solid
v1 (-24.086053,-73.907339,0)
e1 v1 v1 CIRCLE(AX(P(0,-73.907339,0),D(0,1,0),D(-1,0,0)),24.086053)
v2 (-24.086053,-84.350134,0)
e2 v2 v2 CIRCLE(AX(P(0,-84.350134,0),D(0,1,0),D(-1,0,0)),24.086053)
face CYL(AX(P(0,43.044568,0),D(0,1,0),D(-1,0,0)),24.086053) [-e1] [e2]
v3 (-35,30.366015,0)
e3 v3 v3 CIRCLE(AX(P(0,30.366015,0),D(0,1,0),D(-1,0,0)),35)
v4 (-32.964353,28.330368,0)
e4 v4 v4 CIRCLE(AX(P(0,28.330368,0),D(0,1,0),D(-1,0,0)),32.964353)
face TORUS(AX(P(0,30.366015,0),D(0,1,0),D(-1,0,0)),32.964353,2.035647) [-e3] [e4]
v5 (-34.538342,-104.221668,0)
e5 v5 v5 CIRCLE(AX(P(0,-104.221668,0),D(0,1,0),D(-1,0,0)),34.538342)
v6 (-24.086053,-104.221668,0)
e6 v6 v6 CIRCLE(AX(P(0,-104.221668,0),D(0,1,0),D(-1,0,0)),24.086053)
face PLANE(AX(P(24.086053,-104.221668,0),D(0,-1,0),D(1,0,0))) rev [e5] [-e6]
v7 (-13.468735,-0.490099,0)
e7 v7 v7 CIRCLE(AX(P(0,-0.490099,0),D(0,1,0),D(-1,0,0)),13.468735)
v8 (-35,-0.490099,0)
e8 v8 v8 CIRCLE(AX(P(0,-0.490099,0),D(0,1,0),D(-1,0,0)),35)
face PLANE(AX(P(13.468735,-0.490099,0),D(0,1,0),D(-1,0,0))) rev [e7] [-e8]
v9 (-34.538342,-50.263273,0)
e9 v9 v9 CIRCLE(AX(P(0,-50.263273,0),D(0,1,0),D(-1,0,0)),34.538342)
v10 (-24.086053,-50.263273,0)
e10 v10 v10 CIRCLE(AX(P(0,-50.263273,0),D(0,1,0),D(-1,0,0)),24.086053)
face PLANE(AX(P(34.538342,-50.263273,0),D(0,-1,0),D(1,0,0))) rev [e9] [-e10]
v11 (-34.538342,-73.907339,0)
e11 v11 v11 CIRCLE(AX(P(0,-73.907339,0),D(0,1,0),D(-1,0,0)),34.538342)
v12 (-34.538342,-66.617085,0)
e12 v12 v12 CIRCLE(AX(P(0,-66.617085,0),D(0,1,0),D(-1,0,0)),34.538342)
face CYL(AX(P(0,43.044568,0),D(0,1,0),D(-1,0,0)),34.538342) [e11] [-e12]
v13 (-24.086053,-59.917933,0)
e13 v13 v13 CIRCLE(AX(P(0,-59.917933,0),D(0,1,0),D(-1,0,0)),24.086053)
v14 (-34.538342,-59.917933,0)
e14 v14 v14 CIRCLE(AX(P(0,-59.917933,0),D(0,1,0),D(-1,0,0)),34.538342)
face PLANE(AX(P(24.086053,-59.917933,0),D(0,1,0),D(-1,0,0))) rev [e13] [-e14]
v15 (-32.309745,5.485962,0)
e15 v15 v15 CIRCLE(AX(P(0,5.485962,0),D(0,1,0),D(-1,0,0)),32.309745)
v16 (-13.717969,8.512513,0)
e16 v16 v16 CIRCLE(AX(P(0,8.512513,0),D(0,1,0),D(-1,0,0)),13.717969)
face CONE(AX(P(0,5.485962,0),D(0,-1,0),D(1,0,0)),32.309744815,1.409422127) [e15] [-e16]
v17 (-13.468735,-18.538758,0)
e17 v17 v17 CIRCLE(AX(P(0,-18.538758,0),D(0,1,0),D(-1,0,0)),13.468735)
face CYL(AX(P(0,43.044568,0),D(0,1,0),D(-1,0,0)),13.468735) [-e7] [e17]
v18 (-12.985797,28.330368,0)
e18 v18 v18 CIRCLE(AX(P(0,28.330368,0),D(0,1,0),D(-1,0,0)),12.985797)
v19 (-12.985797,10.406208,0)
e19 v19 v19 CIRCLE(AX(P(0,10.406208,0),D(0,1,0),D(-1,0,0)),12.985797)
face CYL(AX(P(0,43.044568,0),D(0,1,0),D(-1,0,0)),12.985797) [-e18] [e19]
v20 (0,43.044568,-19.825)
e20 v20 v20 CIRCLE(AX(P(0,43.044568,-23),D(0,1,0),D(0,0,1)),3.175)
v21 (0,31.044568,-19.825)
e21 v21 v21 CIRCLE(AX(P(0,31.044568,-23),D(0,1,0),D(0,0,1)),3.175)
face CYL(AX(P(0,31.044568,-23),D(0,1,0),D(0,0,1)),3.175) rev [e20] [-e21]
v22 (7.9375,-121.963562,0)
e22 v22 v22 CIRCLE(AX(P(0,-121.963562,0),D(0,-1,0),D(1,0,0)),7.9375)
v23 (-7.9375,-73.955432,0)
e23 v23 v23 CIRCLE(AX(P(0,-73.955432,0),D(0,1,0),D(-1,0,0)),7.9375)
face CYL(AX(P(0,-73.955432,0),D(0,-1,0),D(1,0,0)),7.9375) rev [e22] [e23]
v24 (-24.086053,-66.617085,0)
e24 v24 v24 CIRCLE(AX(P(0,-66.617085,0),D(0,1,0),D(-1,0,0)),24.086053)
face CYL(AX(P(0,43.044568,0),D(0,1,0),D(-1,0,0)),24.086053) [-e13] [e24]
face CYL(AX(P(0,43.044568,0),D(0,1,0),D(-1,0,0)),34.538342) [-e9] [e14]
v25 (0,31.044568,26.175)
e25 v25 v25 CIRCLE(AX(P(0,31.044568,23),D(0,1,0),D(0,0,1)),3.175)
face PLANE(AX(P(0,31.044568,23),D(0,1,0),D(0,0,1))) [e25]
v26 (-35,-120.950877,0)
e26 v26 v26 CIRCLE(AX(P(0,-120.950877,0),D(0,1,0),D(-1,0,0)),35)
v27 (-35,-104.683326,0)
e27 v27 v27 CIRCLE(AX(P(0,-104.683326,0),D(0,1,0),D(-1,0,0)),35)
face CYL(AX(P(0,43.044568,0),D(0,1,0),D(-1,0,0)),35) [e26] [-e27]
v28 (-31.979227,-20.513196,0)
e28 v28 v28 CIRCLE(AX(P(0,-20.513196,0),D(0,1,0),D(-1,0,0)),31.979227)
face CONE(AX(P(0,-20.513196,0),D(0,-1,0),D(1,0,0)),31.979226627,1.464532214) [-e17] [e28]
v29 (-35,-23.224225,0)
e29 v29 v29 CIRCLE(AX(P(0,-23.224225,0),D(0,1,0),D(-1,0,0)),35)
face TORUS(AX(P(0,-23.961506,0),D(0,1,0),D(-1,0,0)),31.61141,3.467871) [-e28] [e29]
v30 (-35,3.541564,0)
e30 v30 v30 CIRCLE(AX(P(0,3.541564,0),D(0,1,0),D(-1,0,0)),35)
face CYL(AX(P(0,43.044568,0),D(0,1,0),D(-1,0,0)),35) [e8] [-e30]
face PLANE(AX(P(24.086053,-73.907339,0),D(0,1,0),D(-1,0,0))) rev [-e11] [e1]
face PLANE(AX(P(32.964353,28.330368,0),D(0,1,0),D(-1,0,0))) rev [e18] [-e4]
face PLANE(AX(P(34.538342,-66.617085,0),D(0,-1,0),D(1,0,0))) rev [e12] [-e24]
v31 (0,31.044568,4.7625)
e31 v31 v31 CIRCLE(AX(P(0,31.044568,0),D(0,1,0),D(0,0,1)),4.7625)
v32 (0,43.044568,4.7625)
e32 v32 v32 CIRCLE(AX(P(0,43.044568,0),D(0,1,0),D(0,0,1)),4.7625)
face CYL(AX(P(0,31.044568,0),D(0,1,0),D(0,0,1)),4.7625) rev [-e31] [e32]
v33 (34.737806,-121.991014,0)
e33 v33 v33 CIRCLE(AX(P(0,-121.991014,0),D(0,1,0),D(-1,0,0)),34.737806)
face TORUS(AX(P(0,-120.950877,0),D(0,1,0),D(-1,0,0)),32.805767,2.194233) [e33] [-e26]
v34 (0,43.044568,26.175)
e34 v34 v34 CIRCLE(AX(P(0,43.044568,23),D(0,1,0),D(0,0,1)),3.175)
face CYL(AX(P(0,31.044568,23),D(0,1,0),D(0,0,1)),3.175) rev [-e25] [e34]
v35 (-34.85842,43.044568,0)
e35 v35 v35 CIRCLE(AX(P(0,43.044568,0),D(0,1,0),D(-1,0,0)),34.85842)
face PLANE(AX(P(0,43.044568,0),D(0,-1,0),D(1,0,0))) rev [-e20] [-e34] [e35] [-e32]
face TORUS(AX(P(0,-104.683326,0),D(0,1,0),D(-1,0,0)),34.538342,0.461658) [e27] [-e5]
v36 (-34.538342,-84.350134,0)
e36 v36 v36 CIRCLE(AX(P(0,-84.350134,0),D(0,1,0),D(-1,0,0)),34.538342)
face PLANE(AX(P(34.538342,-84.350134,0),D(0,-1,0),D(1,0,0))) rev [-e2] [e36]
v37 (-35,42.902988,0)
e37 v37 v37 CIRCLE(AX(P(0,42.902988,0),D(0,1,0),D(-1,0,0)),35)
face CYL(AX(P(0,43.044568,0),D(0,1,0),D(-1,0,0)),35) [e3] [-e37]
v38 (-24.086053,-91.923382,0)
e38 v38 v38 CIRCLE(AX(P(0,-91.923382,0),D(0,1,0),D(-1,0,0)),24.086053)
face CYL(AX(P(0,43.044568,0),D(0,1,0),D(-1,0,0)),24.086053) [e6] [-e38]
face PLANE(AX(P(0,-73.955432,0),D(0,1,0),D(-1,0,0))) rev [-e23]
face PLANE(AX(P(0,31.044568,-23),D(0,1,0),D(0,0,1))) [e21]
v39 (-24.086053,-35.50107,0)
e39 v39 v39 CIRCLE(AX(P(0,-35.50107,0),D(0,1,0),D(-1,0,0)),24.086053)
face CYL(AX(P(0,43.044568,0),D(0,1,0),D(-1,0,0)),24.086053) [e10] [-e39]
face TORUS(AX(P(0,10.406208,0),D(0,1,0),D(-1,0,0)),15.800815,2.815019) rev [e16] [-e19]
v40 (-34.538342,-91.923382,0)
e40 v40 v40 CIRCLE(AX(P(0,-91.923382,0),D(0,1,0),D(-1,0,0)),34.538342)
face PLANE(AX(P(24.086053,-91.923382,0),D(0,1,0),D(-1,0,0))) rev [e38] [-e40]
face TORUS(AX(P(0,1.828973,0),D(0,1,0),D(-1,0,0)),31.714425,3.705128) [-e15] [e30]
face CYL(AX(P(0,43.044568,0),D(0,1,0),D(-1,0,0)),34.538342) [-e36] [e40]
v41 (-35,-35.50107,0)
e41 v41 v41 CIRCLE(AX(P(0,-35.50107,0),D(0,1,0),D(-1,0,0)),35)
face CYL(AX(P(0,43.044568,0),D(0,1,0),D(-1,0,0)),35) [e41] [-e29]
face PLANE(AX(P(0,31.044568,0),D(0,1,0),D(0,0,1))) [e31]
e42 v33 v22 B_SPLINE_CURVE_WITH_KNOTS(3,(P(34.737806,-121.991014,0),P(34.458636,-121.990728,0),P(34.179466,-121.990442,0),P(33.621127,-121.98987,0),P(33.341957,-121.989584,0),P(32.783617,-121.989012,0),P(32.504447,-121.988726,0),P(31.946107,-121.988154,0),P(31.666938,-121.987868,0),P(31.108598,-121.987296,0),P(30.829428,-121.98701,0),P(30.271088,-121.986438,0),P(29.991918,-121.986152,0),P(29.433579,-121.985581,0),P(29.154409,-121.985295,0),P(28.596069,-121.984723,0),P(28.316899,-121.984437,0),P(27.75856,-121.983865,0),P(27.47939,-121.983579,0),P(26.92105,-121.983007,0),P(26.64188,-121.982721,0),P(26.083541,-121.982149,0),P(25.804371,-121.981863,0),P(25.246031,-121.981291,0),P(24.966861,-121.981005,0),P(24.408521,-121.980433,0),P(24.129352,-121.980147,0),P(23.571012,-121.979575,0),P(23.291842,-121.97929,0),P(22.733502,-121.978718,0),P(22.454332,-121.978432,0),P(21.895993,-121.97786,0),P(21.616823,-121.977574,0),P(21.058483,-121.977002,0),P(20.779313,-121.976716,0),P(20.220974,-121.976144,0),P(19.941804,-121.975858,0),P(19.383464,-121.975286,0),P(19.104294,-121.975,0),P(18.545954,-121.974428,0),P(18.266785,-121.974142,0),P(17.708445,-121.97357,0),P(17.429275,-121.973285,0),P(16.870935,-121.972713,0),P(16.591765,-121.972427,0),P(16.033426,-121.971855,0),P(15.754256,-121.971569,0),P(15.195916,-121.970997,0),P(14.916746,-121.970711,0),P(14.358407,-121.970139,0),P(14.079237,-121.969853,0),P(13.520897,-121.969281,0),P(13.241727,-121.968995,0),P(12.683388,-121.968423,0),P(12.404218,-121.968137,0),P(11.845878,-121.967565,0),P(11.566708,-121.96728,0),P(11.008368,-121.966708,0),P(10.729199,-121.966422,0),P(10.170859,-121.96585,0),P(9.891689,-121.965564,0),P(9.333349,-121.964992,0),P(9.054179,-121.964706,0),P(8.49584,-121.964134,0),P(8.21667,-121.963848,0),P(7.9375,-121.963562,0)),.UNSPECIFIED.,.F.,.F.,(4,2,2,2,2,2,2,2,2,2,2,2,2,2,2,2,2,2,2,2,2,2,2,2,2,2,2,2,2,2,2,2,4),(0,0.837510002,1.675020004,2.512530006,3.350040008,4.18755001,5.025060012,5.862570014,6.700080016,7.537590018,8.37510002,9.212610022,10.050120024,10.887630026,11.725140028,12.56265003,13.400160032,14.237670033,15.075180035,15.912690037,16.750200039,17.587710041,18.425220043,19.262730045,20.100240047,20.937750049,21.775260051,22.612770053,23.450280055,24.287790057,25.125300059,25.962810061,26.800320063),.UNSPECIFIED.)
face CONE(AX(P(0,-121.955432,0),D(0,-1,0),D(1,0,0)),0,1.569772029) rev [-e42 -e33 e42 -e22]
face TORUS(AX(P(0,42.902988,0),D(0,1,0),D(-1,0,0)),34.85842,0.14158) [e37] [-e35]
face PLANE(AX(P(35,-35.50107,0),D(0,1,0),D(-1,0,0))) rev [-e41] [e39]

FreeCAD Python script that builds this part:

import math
import FreeCAD as App
import Part
import Sketcher

V = App.Vector

doc = App.newDocument("Part")
body = doc.addObject("PartDesign::Body", "Body")

# Sketch on XY plane
sketch1 = body.newObject("Sketcher::SketchObject", "Sketch")
sketch1.AttachmentSupport = (doc.getObject("XY_Plane"), [""])
sketch1.MapMode = "FlatFace"
sketch1.addGeometry([
    Part.LineSegment(V(34.86, 43.04, 0), V(0, 43.04, 0)),  # 0
    Part.LineSegment(V(0, 43.04, 0), V(0, -121.96, 0)),  # 1
    Part.LineSegment(V(0, -121.96, 0), V(34.74, -121.99, 0)),  # 2
    Part.ArcOfCircle(Part.Circle(V(32.81, -120.95, 0), V(0, 0, 1), 2.19), math.radians(-28), math.radians(0)),  # 3
    Part.LineSegment(V(35, -120.95, 0), V(35, -104.68, 0)),  # 4
    Part.ArcOfCircle(Part.Circle(V(34.54, -104.68, 0), V(0, 0, 1), 0.46), math.radians(0), math.radians(90)),  # 5
    Part.LineSegment(V(34.54, -104.22, 0), V(24.09, -104.22, 0)),  # 6
    Part.LineSegment(V(24.09, -104.22, 0), V(24.09, -91.92, 0)),  # 7
    Part.LineSegment(V(24.09, -91.92, 0), V(34.54, -91.92, 0)),  # 8
    Part.LineSegment(V(34.54, -91.92, 0), V(34.54, -84.35, 0)),  # 9
    Part.LineSegment(V(34.54, -84.35, 0), V(24.09, -84.35, 0)),  # 10
    Part.LineSegment(V(24.09, -84.35, 0), V(24.09, -73.91, 0)),  # 11
    Part.LineSegment(V(24.09, -73.91, 0), V(34.54, -73.91, 0)),  # 12
    Part.LineSegment(V(34.54, -73.91, 0), V(34.54, -66.62, 0)),  # 13
    Part.LineSegment(V(34.54, -66.62, 0), V(24.09, -66.62, 0)),  # 14
    Part.LineSegment(V(24.09, -66.62, 0), V(24.09, -59.92, 0)),  # 15
    Part.LineSegment(V(24.09, -59.92, 0), V(34.54, -59.92, 0)),  # 16
    Part.LineSegment(V(34.54, -59.92, 0), V(34.54, -50.26, 0)),  # 17
    Part.LineSegment(V(34.54, -50.26, 0), V(24.09, -50.26, 0)),  # 18
    Part.LineSegment(V(24.09, -50.26, 0), V(24.09, -35.5, 0)),  # 19
    Part.LineSegment(V(24.09, -35.5, 0), V(35, -35.5, 0)),  # 20
    Part.LineSegment(V(35, -35.5, 0), V(35, -23.22, 0)),  # 21
    Part.ArcOfCircle(Part.Circle(V(31.61, -23.96, 0), V(0, 0, 1), 3.47), math.radians(12), math.radians(84)),  # 22
    Part.LineSegment(V(31.98, -20.51, 0), V(13.47, -18.54, 0)),  # 23
    Part.LineSegment(V(13.47, -18.54, 0), V(13.47, -0.49, 0)),  # 24
    Part.LineSegment(V(13.47, -0.49, 0), V(35, -0.49, 0)),  # 25
    Part.LineSegment(V(35, -0.49, 0), V(35, 3.54, 0)),  # 26
    Part.ArcOfCircle(Part.Circle(V(31.71, 1.83, 0), V(0, 0, 1), 3.71), math.radians(28), math.radians(81)),  # 27
    Part.LineSegment(V(32.31, 5.49, 0), V(13.72, 8.51, 0)),  # 28
    Part.ArcOfCircle(Part.Circle(V(15.8, 10.41, 0), V(0, 0, 1), 2.82), math.radians(-180), math.radians(-138)),  # 29
    Part.LineSegment(V(12.99, 10.41, 0), V(12.99, 28.33, 0)),  # 30
    Part.LineSegment(V(12.99, 28.33, 0), V(32.96, 28.33, 0)),  # 31
    Part.ArcOfCircle(Part.Circle(V(32.96, 30.37, 0), V(0, 0, 1), 2.04), math.radians(-90), math.radians(0)),  # 32
    Part.LineSegment(V(35, 30.37, 0), V(35, 42.9, 0)),  # 33
    Part.ArcOfCircle(Part.Circle(V(34.86, 42.9, 0), V(0, 0, 1), 0.14), math.radians(0), math.radians(90)),  # 34
], False)
sketch1.addConstraint([
    Sketcher.Constraint("Coincident", 0, 2, 1, 1),
    Sketcher.Constraint("Coincident", 1, 2, 2, 1),
    Sketcher.Constraint("Coincident", 2, 2, 3, 1),
    Sketcher.Constraint("Tangent", 3, 2, 4, 1),
    Sketcher.Constraint("Tangent", 4, 2, 5, 1),
    Sketcher.Constraint("Tangent", 5, 2, 6, 1),
    Sketcher.Constraint("Coincident", 6, 2, 7, 1),
    Sketcher.Constraint("Coincident", 7, 2, 8, 1),
    Sketcher.Constraint("Coincident", 8, 2, 9, 1),
    Sketcher.Constraint("Coincident", 9, 2, 10, 1),
    Sketcher.Constraint("Coincident", 10, 2, 11, 1),
    Sketcher.Constraint("Coincident", 11, 2, 12, 1),
    Sketcher.Constraint("Coincident", 12, 2, 13, 1),
    Sketcher.Constraint("Coincident", 13, 2, 14, 1),
    Sketcher.Constraint("Coincident", 14, 2, 15, 1),
    Sketcher.Constraint("Coincident", 15, 2, 16, 1),
    Sketcher.Constraint("Coincident", 16, 2, 17, 1),
    Sketcher.Constraint("Coincident", 17, 2, 18, 1),
    Sketcher.Constraint("Coincident", 18, 2, 19, 1),
    Sketcher.Constraint("Coincident", 19, 2, 20, 1),
    Sketcher.Constraint("Coincident", 20, 2, 21, 1),
    Sketcher.Constraint("Coincident", 21, 2, 22, 1),
    Sketcher.Constraint("Tangent", 22, 2, 23, 1),
    Sketcher.Constraint("Coincident", 23, 2, 24, 1),
    Sketcher.Constraint("Coincident", 24, 2, 25, 1),
    Sketcher.Constraint("Coincident", 25, 2, 26, 1),
    Sketcher.Constraint("Coincident", 26, 2, 27, 1),
    Sketcher.Constraint("Tangent", 27, 2, 28, 1),
    Sketcher.Constraint("Coincident", 28, 2, 29, 2),
    Sketcher.Constraint("Tangent", 29, 1, 30, 1),
    Sketcher.Constraint("Coincident", 30, 2, 31, 1),
    Sketcher.Constraint("Tangent", 31, 2, 32, 1),
    Sketcher.Constraint("Tangent", 32, 2, 33, 1),
    Sketcher.Constraint("Tangent", 33, 2, 34, 1),
    Sketcher.Constraint("Tangent", 34, 2, 0, 1),
    Sketcher.Constraint("Horizontal", 0),
    Sketcher.Constraint("Vertical", 1),
    Sketcher.Constraint("Vertical", 4),
    Sketcher.Constraint("Horizontal", 6),
    Sketcher.Constraint("Vertical", 7),
    Sketcher.Constraint("Horizontal", 8),
    Sketcher.Constraint("Vertical", 9),
    Sketcher.Constraint("Horizontal", 10),
    Sketcher.Constraint("Vertical", 11),
    Sketcher.Constraint("Horizontal", 12),
    Sketcher.Constraint("Vertical", 13),
    Sketcher.Constraint("Horizontal", 14),
    Sketcher.Constraint("Vertical", 15),
    Sketcher.Constraint("Horizontal", 16),
    Sketcher.Constraint("Vertical", 17),
    Sketcher.Constraint("Horizontal", 18),
    Sketcher.Constraint("Vertical", 19),
    Sketcher.Constraint("Horizontal", 20),
    Sketcher.Constraint("Vertical", 21),
    Sketcher.Constraint("Vertical", 24),
    Sketcher.Constraint("Horizontal", 25),
    Sketcher.Constraint("Vertical", 26),
    Sketcher.Constraint("Vertical", 30),
    Sketcher.Constraint("Horizontal", 31),
    Sketcher.Constraint("Vertical", 33),
    Sketcher.Constraint("PointOnObject", 0, 2, -2),
    Sketcher.Constraint("Vertical", 5, 2, 8, 2),
    Sketcher.Constraint("Vertical", 7, 2, 10, 2),
    Sketcher.Constraint("Vertical", 9, 2, 12, 2),
    Sketcher.Constraint("Vertical", 11, 2, 14, 2),
    Sketcher.Constraint("Vertical", 13, 2, 16, 2),
    Sketcher.Constraint("Vertical", 15, 2, 18, 2),
    Sketcher.Constraint("Vertical", 4, 2, 20, 2),
    Sketcher.Constraint("Vertical", 21, 2, 25, 2),
    Sketcher.Constraint("Vertical", 26, 2, 32, 2),
    Sketcher.Constraint("DistanceY", 1, 2, 1, 1, 165.0),
    Sketcher.Constraint("DistanceX", -1, 1, 3, 2, 35.0),
    Sketcher.Constraint("Radius", 22, 3.467871),
    Sketcher.Constraint("Radius", 29, 2.815019),
    Sketcher.Constraint("Radius", 34, 0.14158),
    Sketcher.Constraint("Radius", 3, 2.194233),
    Sketcher.Constraint("Radius", 5, 0.461658),
    Sketcher.Constraint("Radius", 27, 3.705128),
    Sketcher.Constraint("Radius", 32, 2.035647),
    Sketcher.Constraint("DistanceX", 6, 2, 6, 1, 10.452289),
    Sketcher.Constraint("DistanceY", 4, 1, 4, 2, 16.267551),
    Sketcher.Constraint("DistanceY", 15, 1, 15, 2, 6.699152),
    Sketcher.Constraint("DistanceY", 17, 1, 17, 2, 9.65466),
    Sketcher.Constraint("DistanceY", 24, 1, 24, 2, 18.048659),
    Sketcher.Constraint("DistanceY", 30, 1, 30, 2, 17.92416),
    Sketcher.Constraint("DistanceY", 24, 2, -1, 1, 0.490099),
    Sketcher.Constraint("DistanceY", 5, 3, 27, 3, 106.512299),
    Sketcher.Constraint("DistanceY", 10, 2, 15, 2, 24.432201),
    Sketcher.Constraint("DistanceY", 21, 2, 27, 3, 25.053198),
    Sketcher.Constraint("DistanceY", 26, 2, 27, 2, 1.944398),
    Sketcher.Constraint("DistanceY", 30, 2, 0, 2, 14.7142),
    Sketcher.Constraint("Distance", 28, 18.836511),
    Sketcher.Constraint("DistanceX", 25, 1, 25, 2, 21.531265),
    Sketcher.Constraint("DistanceX", 31, 1, 31, 2, 19.978556),
    Sketcher.Constraint("DistanceY", 7, 1, 7, 2, 12.298286),
    Sketcher.Constraint("DistanceY", 9, 1, 9, 2, 7.573247),
    Sketcher.Constraint("DistanceY", 11, 1, 11, 2, 10.442796),
    Sketcher.Constraint("DistanceY", 19, 1, 19, 2, 14.762204),
    Sketcher.Constraint("DistanceY", 26, 1, 26, 2, 4.031662),
    Sketcher.Constraint("DistanceX", -1, 1, 22, 3, 31.61141),
    Sketcher.Constraint("DistanceY", -1, 1, 0, 2, 43.044568),
    Sketcher.Constraint("DistanceX", 3, 3, 2, 2, 1.932039),
])
revolution = body.newObject("PartDesign::Revolution", "Revolution")
revolution.Profile = sketch1
revolution.ReferenceAxis = (sketch1, ["V_Axis"])
revolution.Angle = 360

# Sketch on XZ plane
sketch2 = body.newObject("Sketcher::SketchObject", "Sketch001")
sketch2.AttachmentSupport = (doc.getObject("XZ_Plane"), [""])
sketch2.MapMode = "FlatFace"
sketch2.AttachmentOffset = App.Placement(V(0, 0, -43.044568), App.Rotation())
sketch2.addGeometry([
    Part.Circle(V(0, -23, 0), V(0, 0, 1), 3.2),
    Part.Circle(V(0, 23, 0), V(0, 0, 1), 3.2),
], False)
sketch2.addConstraint([
    Sketcher.Constraint("Equal", 0, 1),
    Sketcher.Constraint("Symmetric", 0, 3, 1, 3, -1, 1),
    Sketcher.Constraint("PointOnObject", 0, 3, -2),
    Sketcher.Constraint("Diameter", 0, 6.35),
    Sketcher.Constraint("DistanceY", 0, 3, -1, 1, 23.0),
])
pocket1 = body.newObject("PartDesign::Pocket", "Pocket")
pocket1.Profile = sketch2
pocket1.Length = 12
pocket1.Reversed = True

# Sketch on XZ plane
sketch3 = body.newObject("Sketcher::SketchObject", "Sketch002")
sketch3.AttachmentSupport = (doc.getObject("XZ_Plane"), [""])
sketch3.MapMode = "FlatFace"
sketch3.AttachmentOffset = App.Placement(V(0, 0, -43.044568), App.Rotation())
sketch3.addGeometry(Part.Circle(V(0, 0, 0), V(0, 0, 1), 4.8), False)
sketch3.addConstraint([
    Sketcher.Constraint("Coincident", 0, 3, -1, 1),
    Sketcher.Constraint("Diameter", 0, 9.525),
])
pocket2 = body.newObject("PartDesign::Pocket", "Pocket001")
pocket2.Profile = sketch3
pocket2.Length = 12
pocket2.Reversed = True

# Sketch on XZ plane
sketch4 = body.newObject("Sketcher::SketchObject", "Sketch003")
sketch4.AttachmentSupport = (doc.getObject("XZ_Plane"), [""])
sketch4.MapMode = "FlatFace"
sketch4.AttachmentOffset = App.Placement(V(0, 0, 126.955432), App.Rotation())
sketch4.addGeometry(Part.Circle(V(0, 0, 0), V(0, 0, 1), 8), False)
sketch4.addConstraint([
    Sketcher.Constraint("Coincident", 0, 3, -1, 1),
    Sketcher.Constraint("Diameter", 0, 15.875),
])
pocket3 = body.newObject("PartDesign::Pocket", "Pocket002")
pocket3.Profile = sketch4
pocket3.Length = 53

doc.recompute()
